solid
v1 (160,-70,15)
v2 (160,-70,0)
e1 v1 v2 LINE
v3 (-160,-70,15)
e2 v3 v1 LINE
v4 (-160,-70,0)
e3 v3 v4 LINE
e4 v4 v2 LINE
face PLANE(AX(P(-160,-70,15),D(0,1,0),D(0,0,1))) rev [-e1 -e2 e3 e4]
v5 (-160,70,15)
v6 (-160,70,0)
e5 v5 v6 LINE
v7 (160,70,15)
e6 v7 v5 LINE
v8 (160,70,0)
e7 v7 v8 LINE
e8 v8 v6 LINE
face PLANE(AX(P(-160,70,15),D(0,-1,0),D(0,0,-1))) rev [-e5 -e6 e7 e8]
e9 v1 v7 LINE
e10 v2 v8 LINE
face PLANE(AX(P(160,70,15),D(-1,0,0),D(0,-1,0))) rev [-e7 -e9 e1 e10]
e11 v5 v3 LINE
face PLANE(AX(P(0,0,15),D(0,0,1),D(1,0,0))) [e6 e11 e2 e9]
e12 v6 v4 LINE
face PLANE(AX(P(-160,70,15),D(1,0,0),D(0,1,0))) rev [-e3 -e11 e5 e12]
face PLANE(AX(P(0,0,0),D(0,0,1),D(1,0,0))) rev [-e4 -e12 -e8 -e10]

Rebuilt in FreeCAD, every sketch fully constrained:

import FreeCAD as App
import Part
import Sketcher


def add_polygon(sketch, points):
    """Adds a closed chain of lines whose ends are joined by coincident constraints."""
    first, n = sketch.GeometryCount, len(points)
    for a, b in zip(points, points[1:] + points[:1]):
        sketch.addGeometry(Part.LineSegment(App.Vector(*a, 0), App.Vector(*b, 0)), False)
    for i in range(n):
        sketch.addConstraint(Sketcher.Constraint("Coincident", first + i, 2, first + (i + 1) % n, 1))

doc = App.newDocument("Part")
body = doc.addObject("PartDesign::Body", "Body")

sketch1 = doc.addObject("Sketcher::SketchObject", "Sketch")
body.addObject(sketch1)
sketch1.AttachmentSupport = (doc.XY_Plane, [""])
sketch1.MapMode = "FlatFace"
add_polygon(sketch1, [(-160, 70), (-160, -70), (160, -70), (160, 70)])
sketch1.addConstraint([
    Sketcher.Constraint("Vertical", 0),
    Sketcher.Constraint("Horizontal", 1),
    Sketcher.Constraint("Vertical", 2),
    Sketcher.Constraint("Horizontal", 3),
    Sketcher.Constraint("Symmetric", 0, 2, 2, 2, -1, 1),
    Sketcher.Constraint("DistanceX", 1, 1, 1, 2, 320.0),
    Sketcher.Constraint("DistanceY", 0, 2, 0, 1, 140.0),
])
pad1 = doc.addObject("PartDesign::Pad", "Pad")
body.addObject(pad1)
pad1.Profile = sketch1
pad1.Length = 15

doc.recompute()
